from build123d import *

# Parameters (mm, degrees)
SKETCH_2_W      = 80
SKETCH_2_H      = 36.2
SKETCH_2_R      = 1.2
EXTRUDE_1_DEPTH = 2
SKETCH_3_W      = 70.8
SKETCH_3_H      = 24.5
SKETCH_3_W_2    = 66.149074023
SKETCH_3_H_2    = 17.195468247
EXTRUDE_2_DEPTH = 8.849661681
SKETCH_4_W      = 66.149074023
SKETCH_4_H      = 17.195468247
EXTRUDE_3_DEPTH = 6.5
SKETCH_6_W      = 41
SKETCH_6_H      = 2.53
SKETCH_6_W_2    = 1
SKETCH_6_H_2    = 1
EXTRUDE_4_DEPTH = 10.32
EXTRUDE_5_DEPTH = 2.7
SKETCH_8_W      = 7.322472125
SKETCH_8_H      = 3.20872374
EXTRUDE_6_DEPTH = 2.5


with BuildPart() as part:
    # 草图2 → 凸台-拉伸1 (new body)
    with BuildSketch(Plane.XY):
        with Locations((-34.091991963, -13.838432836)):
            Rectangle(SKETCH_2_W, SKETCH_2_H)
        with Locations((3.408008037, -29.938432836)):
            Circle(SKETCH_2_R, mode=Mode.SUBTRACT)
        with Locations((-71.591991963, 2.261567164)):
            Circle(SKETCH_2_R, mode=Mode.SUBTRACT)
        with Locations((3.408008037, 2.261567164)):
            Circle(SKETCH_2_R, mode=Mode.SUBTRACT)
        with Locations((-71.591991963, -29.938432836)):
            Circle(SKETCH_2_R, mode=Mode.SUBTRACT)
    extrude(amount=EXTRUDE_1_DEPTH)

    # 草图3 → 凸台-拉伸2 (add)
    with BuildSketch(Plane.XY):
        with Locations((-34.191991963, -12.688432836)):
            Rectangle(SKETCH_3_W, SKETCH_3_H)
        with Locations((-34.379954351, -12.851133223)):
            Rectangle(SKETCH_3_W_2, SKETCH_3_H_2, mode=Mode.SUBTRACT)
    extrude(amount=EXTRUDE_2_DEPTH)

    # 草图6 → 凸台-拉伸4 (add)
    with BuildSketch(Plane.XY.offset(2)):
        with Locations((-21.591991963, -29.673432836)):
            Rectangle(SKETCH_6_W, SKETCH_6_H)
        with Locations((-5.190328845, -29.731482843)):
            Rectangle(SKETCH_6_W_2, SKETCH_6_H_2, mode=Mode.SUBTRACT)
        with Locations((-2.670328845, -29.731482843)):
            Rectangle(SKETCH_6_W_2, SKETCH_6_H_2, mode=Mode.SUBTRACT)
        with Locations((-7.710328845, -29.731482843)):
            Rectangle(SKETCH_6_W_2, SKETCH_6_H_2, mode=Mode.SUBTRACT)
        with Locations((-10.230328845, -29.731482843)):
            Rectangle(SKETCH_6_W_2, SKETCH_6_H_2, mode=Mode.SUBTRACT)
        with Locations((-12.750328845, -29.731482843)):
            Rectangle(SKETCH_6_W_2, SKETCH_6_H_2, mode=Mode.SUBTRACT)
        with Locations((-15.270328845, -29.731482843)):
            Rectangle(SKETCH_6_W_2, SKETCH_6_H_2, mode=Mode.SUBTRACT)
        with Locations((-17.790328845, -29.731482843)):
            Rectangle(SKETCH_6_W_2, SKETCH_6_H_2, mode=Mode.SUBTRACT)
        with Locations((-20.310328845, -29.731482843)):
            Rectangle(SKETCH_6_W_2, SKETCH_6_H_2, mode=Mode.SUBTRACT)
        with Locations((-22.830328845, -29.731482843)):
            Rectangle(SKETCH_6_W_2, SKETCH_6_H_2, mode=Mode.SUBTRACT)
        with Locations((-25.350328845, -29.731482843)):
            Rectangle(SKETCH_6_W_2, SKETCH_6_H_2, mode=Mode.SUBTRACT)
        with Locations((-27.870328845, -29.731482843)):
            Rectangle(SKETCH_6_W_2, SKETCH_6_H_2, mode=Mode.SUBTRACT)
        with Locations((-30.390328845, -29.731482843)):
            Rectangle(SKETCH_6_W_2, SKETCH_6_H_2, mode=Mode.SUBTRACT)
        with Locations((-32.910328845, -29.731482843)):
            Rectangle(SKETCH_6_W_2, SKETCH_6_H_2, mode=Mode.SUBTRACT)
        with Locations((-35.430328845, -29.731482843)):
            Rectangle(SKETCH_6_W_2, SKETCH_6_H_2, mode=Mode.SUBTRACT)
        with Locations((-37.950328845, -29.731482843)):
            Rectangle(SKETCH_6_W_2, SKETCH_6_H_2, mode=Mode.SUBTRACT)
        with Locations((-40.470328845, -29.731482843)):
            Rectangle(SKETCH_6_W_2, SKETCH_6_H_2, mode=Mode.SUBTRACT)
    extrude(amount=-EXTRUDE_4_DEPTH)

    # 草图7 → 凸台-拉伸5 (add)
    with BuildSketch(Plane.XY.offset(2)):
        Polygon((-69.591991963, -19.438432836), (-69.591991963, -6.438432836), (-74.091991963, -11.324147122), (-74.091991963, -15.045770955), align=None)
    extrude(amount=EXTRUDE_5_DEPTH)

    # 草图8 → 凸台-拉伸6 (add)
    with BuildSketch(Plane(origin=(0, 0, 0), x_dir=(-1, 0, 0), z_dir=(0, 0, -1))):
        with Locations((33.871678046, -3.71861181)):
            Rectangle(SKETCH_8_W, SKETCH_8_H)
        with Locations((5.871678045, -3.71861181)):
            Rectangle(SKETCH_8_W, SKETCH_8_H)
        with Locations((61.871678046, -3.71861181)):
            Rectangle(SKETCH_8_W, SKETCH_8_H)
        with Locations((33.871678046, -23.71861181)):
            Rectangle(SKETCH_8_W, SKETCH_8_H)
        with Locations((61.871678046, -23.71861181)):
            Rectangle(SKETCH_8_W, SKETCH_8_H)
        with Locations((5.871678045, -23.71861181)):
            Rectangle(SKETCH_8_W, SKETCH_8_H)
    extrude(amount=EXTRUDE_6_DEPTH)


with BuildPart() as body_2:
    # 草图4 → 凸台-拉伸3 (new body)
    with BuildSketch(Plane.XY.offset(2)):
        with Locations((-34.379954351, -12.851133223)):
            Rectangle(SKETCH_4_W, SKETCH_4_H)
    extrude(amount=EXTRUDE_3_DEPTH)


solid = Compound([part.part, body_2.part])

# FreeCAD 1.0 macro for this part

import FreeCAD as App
import Part
import Sketcher
from FreeCAD import Vector

doc = App.newDocument("Part")
body = doc.addObject("PartDesign::Body", "Body")

# Sketch on XY plane
sketch1 = body.newObject("Sketcher::SketchObject", "Sketch")
sketch1.AttachmentSupport = (doc.getObject("XY_Plane"), [""])
sketch1.MapMode = "FlatFace"
sketch1.addGeometry([
    Part.LineSegment(Vector(-74.1, 4.3, 0), Vector(-74.1, -31.9, 0)),  # 0
    Part.LineSegment(Vector(-74.1, -31.9, 0), Vector(5.9, -31.9, 0)),  # 1
    Part.LineSegment(Vector(5.9, -31.9, 0), Vector(5.9, 4.3, 0)),  # 2
    Part.LineSegment(Vector(5.9, 4.3, 0), Vector(-74.1, 4.3, 0)),  # 3
    Part.Circle(Vector(-71.6, -29.9, 0), Vector(0, 0, 1), 1.2),  # 4
    Part.Circle(Vector(3.4, -29.9, 0), Vector(0, 0, 1), 1.2),  # 5
    Part.Circle(Vector(-71.6, 2.3, 0), Vector(0, 0, 1), 1.2),  # 6
    Part.Circle(Vector(3.4, 2.3, 0), Vector(0, 0, 1), 1.2),  # 7
], False)
sketch1.addConstraint([
    Sketcher.Constraint("Coincident", 0, 2, 1, 1),
    Sketcher.Constraint("Coincident", 1, 2, 2, 1),
    Sketcher.Constraint("Coincident", 2, 2, 3, 1),
    Sketcher.Constraint("Coincident", 3, 2, 0, 1),
    Sketcher.Constraint("Vertical", 0),
    Sketcher.Constraint("Horizontal", 1),
    Sketcher.Constraint("Vertical", 2),
    Sketcher.Constraint("Horizontal", 3),
    Sketcher.Constraint("Equal", 4, 5),
    Sketcher.Constraint("Equal", 5, 6),
    Sketcher.Constraint("Equal", 6, 7),
    Sketcher.Constraint("Horizontal", 4, 3, 5, 3),
    Sketcher.Constraint("Horizontal", 6, 3, 7, 3),
    Sketcher.Constraint("Vertical", 4, 3, 6, 3),
    Sketcher.Constraint("Vertical", 5, 3, 7, 3),
    Sketcher.Constraint("Diameter", 4, 2.4),
    Sketcher.Constraint("DistanceX", 1, 1, 1, 2, 80.0),
    Sketcher.Constraint("DistanceY", 0, 2, 0, 1, 36.2),
    Sketcher.Constraint("DistanceX", 4, 3, 5, 3, 75.0),
    Sketcher.Constraint("DistanceY", 0, 2, 4, 3, 2.0),
    Sketcher.Constraint("DistanceY", 7, 3, 2, 2, 2.0),
    Sketcher.Constraint("DistanceX", 0, 2, 4, 3, 2.5),
    Sketcher.Constraint("DistanceX", 4, 3, -1, 1, 71.591992),
    Sketcher.Constraint("DistanceY", 4, 3, -1, 1, 29.938433),
])
pad1 = body.newObject("PartDesign::Pad", "Pad")
pad1.Profile = sketch1
pad1.Length = 2

# Sketch on XY plane
sketch2 = body.newObject("Sketcher::SketchObject", "Sketch001")
sketch2.AttachmentSupport = (doc.getObject("XY_Plane"), [""])
sketch2.MapMode = "FlatFace"
sketch2.addGeometry([
    Part.LineSegment(Vector(-70, 0, 0), Vector(-70, -25, 0)),  # 0
    Part.LineSegment(Vector(-70, -25, 0), Vector(1, -25, 0)),  # 1
    Part.LineSegment(Vector(1, -25, 0), Vector(1, 0, 0)),  # 2
    Part.LineSegment(Vector(1, 0, 0), Vector(-70, 0, 0)),  # 3
    Part.LineSegment(Vector(-1, -21, 0), Vector(-67, -21, 0)),  # 4
    Part.LineSegment(Vector(-67, -21, 0), Vector(-67, -4, 0)),  # 5
    Part.LineSegment(Vector(-67, -4, 0), Vector(-1, -4, 0)),  # 6
    Part.LineSegment(Vector(-1, -4, 0), Vector(-1, -21, 0)),  # 7
], False)
sketch2.addConstraint([
    Sketcher.Constraint("Coincident", 0, 2, 1, 1),
    Sketcher.Constraint("Coincident", 1, 2, 2, 1),
    Sketcher.Constraint("Coincident", 2, 2, 3, 1),
    Sketcher.Constraint("Coincident", 3, 2, 0, 1),
    Sketcher.Constraint("Coincident", 4, 2, 5, 1),
    Sketcher.Constraint("Coincident", 5, 2, 6, 1),
    Sketcher.Constraint("Coincident", 6, 2, 7, 1),
    Sketcher.Constraint("Coincident", 7, 2, 4, 1),
    Sketcher.Constraint("Vertical", 0),
    Sketcher.Constraint("Horizontal", 1),
    Sketcher.Constraint("Vertical", 2),
    Sketcher.Constraint("Horizontal", 3),
    Sketcher.Constraint("Horizontal", 4),
    Sketcher.Constraint("Vertical", 5),
    Sketcher.Constraint("Horizontal", 6),
    Sketcher.Constraint("Vertical", 7),
    Sketcher.Constraint("DistanceX", 1, 1, 1, 2, 70.8),
    Sketcher.Constraint("DistanceY", 0, 2, 0, 1, 24.5),
    Sketcher.Constraint("DistanceY", 5, 1, 5, 2, 17.195468),
    Sketcher.Constraint("DistanceY", 5, 2, -1, 1, 4.253399),
    Sketcher.Constraint("DistanceX", 0, 2, 4, 2, 2.137501),
    Sketcher.Constraint("DistanceX", 4, 2, 4, 1, 66.149074),
    Sketcher.Constraint("DistanceX", 0, 2, -1, 1, 69.591992),
    Sketcher.Constraint("DistanceY", 0, 2, -1, 1, 24.938433),
])
pad2 = body.newObject("PartDesign::Pad", "Pad001")
pad2.Profile = sketch2
pad2.Length = 8.849662

# Sketch on XY plane
sketch3 = body.newObject("Sketcher::SketchObject", "Sketch002")
sketch3.AttachmentSupport = (doc.getObject("XY_Plane"), [""])
sketch3.MapMode = "FlatFace"
sketch3.AttachmentOffset = App.Placement(Vector(0, 0, 2), App.Rotation())
sketch3.addGeometry([
    Part.LineSegment(Vector(-42.1, -28.4, 0), Vector(-42.1, -30.9, 0)),  # 0
    Part.LineSegment(Vector(-42.1, -30.9, 0), Vector(-1.1, -30.9, 0)),  # 1
    Part.LineSegment(Vector(-1.1, -30.9, 0), Vector(-1.1, -28.4, 0)),  # 2
    Part.LineSegment(Vector(-1.1, -28.4, 0), Vector(-42.1, -28.4, 0)),  # 3
    Part.LineSegment(Vector(-40, -30.2, 0), Vector(-41, -30.2, 0)),  # 4
    Part.LineSegment(Vector(-41, -30.2, 0), Vector(-41, -29.2, 0)),  # 5
    Part.LineSegment(Vector(-41, -29.2, 0), Vector(-40, -29.2, 0)),  # 6
    Part.LineSegment(Vector(-40, -29.2, 0), Vector(-40, -30.2, 0)),  # 7
    Part.LineSegment(Vector(-37.5, -30.2, 0), Vector(-38.5, -30.2, 0)),  # 8
    Part.LineSegment(Vector(-38.5, -30.2, 0), Vector(-38.5, -29.2, 0)),  # 9
    Part.LineSegment(Vector(-38.5, -29.2, 0), Vector(-37.5, -29.2, 0)),  # 10
    Part.LineSegment(Vector(-37.5, -29.2, 0), Vector(-37.5, -30.2, 0)),  # 11
    Part.LineSegment(Vector(-34.9, -30.2, 0), Vector(-35.9, -30.2, 0)),  # 12
    Part.LineSegment(Vector(-35.9, -30.2, 0), Vector(-35.9, -29.2, 0)),  # 13
    Part.LineSegment(Vector(-35.9, -29.2, 0), Vector(-34.9, -29.2, 0)),  # 14
    Part.LineSegment(Vector(-34.9, -29.2, 0), Vector(-34.9, -30.2, 0)),  # 15
    Part.LineSegment(Vector(-32.4, -30.2, 0), Vector(-33.4, -30.2, 0)),  # 16
    Part.LineSegment(Vector(-33.4, -30.2, 0), Vector(-33.4, -29.2, 0)),  # 17
    Part.LineSegment(Vector(-33.4, -29.2, 0), Vector(-32.4, -29.2, 0)),  # 18
    Part.LineSegment(Vector(-32.4, -29.2, 0), Vector(-32.4, -30.2, 0)),  # 19
    Part.LineSegment(Vector(-29.9, -30.2, 0), Vector(-30.9, -30.2, 0)),  # 20
    Part.LineSegment(Vector(-30.9, -30.2, 0), Vector(-30.9, -29.2, 0)),  # 21
    Part.LineSegment(Vector(-30.9, -29.2, 0), Vector(-29.9, -29.2, 0)),  # 22
    Part.LineSegment(Vector(-29.9, -29.2, 0), Vector(-29.9, -30.2, 0)),  # 23
    Part.LineSegment(Vector(-27.4, -30.2, 0), Vector(-28.4, -30.2, 0)),  # 24
    Part.LineSegment(Vector(-28.4, -30.2, 0), Vector(-28.4, -29.2, 0)),  # 25
    Part.LineSegment(Vector(-28.4, -29.2, 0), Vector(-27.4, -29.2, 0)),  # 26
    Part.LineSegment(Vector(-27.4, -29.2, 0), Vector(-27.4, -30.2, 0)),  # 27
    Part.LineSegment(Vector(-24.9, -30.2, 0), Vector(-25.9, -30.2, 0)),  # 28
    Part.LineSegment(Vector(-25.9, -30.2, 0), Vector(-25.9, -29.2, 0)),  # 29
    Part.LineSegment(Vector(-25.9, -29.2, 0), Vector(-24.9, -29.2, 0)),  # 30
    Part.LineSegment(Vector(-24.9, -29.2, 0), Vector(-24.9, -30.2, 0)),  # 31
    Part.LineSegment(Vector(-22.3, -30.2, 0), Vector(-23.3, -30.2, 0)),  # 32
    Part.LineSegment(Vector(-23.3, -30.2, 0), Vector(-23.3, -29.2, 0)),  # 33
    Part.LineSegment(Vector(-23.3, -29.2, 0), Vector(-22.3, -29.2, 0)),  # 34
    Part.LineSegment(Vector(-22.3, -29.2, 0), Vector(-22.3, -30.2, 0)),  # 35
    Part.LineSegment(Vector(-19.8, -30.2, 0), Vector(-20.8, -30.2, 0)),  # 36
    Part.LineSegment(Vector(-20.8, -30.2, 0), Vector(-20.8, -29.2, 0)),  # 37
    Part.LineSegment(Vector(-20.8, -29.2, 0), Vector(-19.8, -29.2, 0)),  # 38
    Part.LineSegment(Vector(-19.8, -29.2, 0), Vector(-19.8, -30.2, 0)),  # 39
    Part.LineSegment(Vector(-17.3, -30.2, 0), Vector(-18.3, -30.2, 0)),  # 40
    Part.LineSegment(Vector(-18.3, -30.2, 0), Vector(-18.3, -29.2, 0)),  # 41
    Part.LineSegment(Vector(-18.3, -29.2, 0), Vector(-17.3, -29.2, 0)),  # 42
    Part.LineSegment(Vector(-17.3, -29.2, 0), Vector(-17.3, -30.2, 0)),  # 43
    Part.LineSegment(Vector(-14.8, -30.2, 0), Vector(-15.8, -30.2, 0)),  # 44
    Part.LineSegment(Vector(-15.8, -30.2, 0), Vector(-15.8, -29.2, 0)),  # 45
    Part.LineSegment(Vector(-15.8, -29.2, 0), Vector(-14.8, -29.2, 0)),  # 46
    Part.LineSegment(Vector(-14.8, -29.2, 0), Vector(-14.8, -30.2, 0)),  # 47
    Part.LineSegment(Vector(-12.3, -30.2, 0), Vector(-13.3, -30.2, 0)),  # 48
    Part.LineSegment(Vector(-13.3, -30.2, 0), Vector(-13.3, -29.2, 0)),  # 49
    Part.LineSegment(Vector(-13.3, -29.2, 0), Vector(-12.3, -29.2, 0)),  # 50
    Part.LineSegment(Vector(-12.3, -29.2, 0), Vector(-12.3, -30.2, 0)),  # 51
    Part.LineSegment(Vector(-9.7, -30.2, 0), Vector(-10.7, -30.2, 0)),  # 52
    Part.LineSegment(Vector(-10.7, -30.2, 0), Vector(-10.7, -29.2, 0)),  # 53
    Part.LineSegment(Vector(-10.7, -29.2, 0), Vector(-9.7, -29.2, 0)),  # 54
    Part.LineSegment(Vector(-9.7, -29.2, 0), Vector(-9.7, -30.2, 0)),  # 55
    Part.LineSegment(Vector(-7.2, -30.2, 0), Vector(-8.2, -30.2, 0)),  # 56
    Part.LineSegment(Vector(-8.2, -30.2, 0), Vector(-8.2, -29.2, 0)),  # 57
    Part.LineSegment(Vector(-8.2, -29.2, 0), Vector(-7.2, -29.2, 0)),  # 58
    Part.LineSegment(Vector(-7.2, -29.2, 0), Vector(-7.2, -30.2, 0)),  # 59
    Part.LineSegment(Vector(-4.7, -30.2, 0), Vector(-5.7, -30.2, 0)),  # 60
    Part.LineSegment(Vector(-5.7, -30.2, 0), Vector(-5.7, -29.2, 0)),  # 61
    Part.LineSegment(Vector(-5.7, -29.2, 0), Vector(-4.7, -29.2, 0)),  # 62
    Part.LineSegment(Vector(-4.7, -29.2, 0), Vector(-4.7, -30.2, 0)),  # 63
    Part.LineSegment(Vector(-2.2, -30.2, 0), Vector(-3.2, -30.2, 0)),  # 64
    Part.LineSegment(Vector(-3.2, -30.2, 0), Vector(-3.2, -29.2, 0)),  # 65
    Part.LineSegment(Vector(-3.2, -29.2, 0), Vector(-2.2, -29.2, 0)),  # 66
    Part.LineSegment(Vector(-2.2, -29.2, 0), Vector(-2.2, -30.2, 0)),  # 67
], False)
sketch3.addConstraint([
    Sketcher.Constraint("Coincident", 0, 2, 1, 1),
    Sketcher.Constraint("Coincident", 1, 2, 2, 1),
    Sketcher.Constraint("Coincident", 2, 2, 3, 1),
    Sketcher.Constraint("Coincident", 3, 2, 0, 1),
    Sketcher.Constraint("Coincident", 4, 2, 5, 1),
    Sketcher.Constraint("Coincident", 5, 2, 6, 1),
    Sketcher.Constraint("Coincident", 6, 2, 7, 1),
    Sketcher.Constraint("Coincident", 7, 2, 4, 1),
    Sketcher.Constraint("Coincident", 8, 2, 9, 1),
    Sketcher.Constraint("Coincident", 9, 2, 10, 1),
    Sketcher.Constraint("Coincident", 10, 2, 11, 1),
    Sketcher.Constraint("Coincident", 11, 2, 8, 1),
    Sketcher.Constraint("Coincident", 12, 2, 13, 1),
    Sketcher.Constraint("Coincident", 13, 2, 14, 1),
    Sketcher.Constraint("Coincident", 14, 2, 15, 1),
    Sketcher.Constraint("Coincident", 15, 2, 12, 1),
    Sketcher.Constraint("Coincident", 16, 2, 17, 1),
    Sketcher.Constraint("Coincident", 17, 2, 18, 1),
    Sketcher.Constraint("Coincident", 18, 2, 19, 1),
    Sketcher.Constraint("Coincident", 19, 2, 16, 1),
    Sketcher.Constraint("Coincident", 20, 2, 21, 1),
    Sketcher.Constraint("Coincident", 21, 2, 22, 1),
    Sketcher.Constraint("Coincident", 22, 2, 23, 1),
    Sketcher.Constraint("Coincident", 23, 2, 20, 1),
    Sketcher.Constraint("Coincident", 24, 2, 25, 1),
    Sketcher.Constraint("Coincident", 25, 2, 26, 1),
    Sketcher.Constraint("Coincident", 26, 2, 27, 1),
    Sketcher.Constraint("Coincident", 27, 2, 24, 1),
    Sketcher.Constraint("Coincident", 28, 2, 29, 1),
    Sketcher.Constraint("Coincident", 29, 2, 30, 1),
    Sketcher.Constraint("Coincident", 30, 2, 31, 1),
    Sketcher.Constraint("Coincident", 31, 2, 28, 1),
    Sketcher.Constraint("Coincident", 32, 2, 33, 1),
    Sketcher.Constraint("Coincident", 33, 2, 34, 1),
    Sketcher.Constraint("Coincident", 34, 2, 35, 1),
    Sketcher.Constraint("Coincident", 35, 2, 32, 1),
    Sketcher.Constraint("Coincident", 36, 2, 37, 1),
    Sketcher.Constraint("Coincident", 37, 2, 38, 1),
    Sketcher.Constraint("Coincident", 38, 2, 39, 1),
    Sketcher.Constraint("Coincident", 39, 2, 36, 1),
    Sketcher.Constraint("Coincident", 40, 2, 41, 1),
    Sketcher.Constraint("Coincident", 41, 2, 42, 1),
    Sketcher.Constraint("Coincident", 42, 2, 43, 1),
    Sketcher.Constraint("Coincident", 43, 2, 40, 1),
    Sketcher.Constraint("Coincident", 44, 2, 45, 1),
    Sketcher.Constraint("Coincident", 45, 2, 46, 1),
    Sketcher.Constraint("Coincident", 46, 2, 47, 1),
    Sketcher.Constraint("Coincident", 47, 2, 44, 1),
    Sketcher.Constraint("Coincident", 48, 2, 49, 1),
    Sketcher.Constraint("Coincident", 49, 2, 50, 1),
    Sketcher.Constraint("Coincident", 50, 2, 51, 1),
    Sketcher.Constraint("Coincident", 51, 2, 48, 1),
    Sketcher.Constraint("Coincident", 52, 2, 53, 1),
    Sketcher.Constraint("Coincident", 53, 2, 54, 1),
    Sketcher.Constraint("Coincident", 54, 2, 55, 1),
    Sketcher.Constraint("Coincident", 55, 2, 52, 1),
    Sketcher.Constraint("Coincident", 56, 2, 57, 1),
    Sketcher.Constraint("Coincident", 57, 2, 58, 1),
    Sketcher.Constraint("Coincident", 58, 2, 59, 1),
    Sketcher.Constraint("Coincident", 59, 2, 56, 1),
    Sketcher.Constraint("Coincident", 60, 2, 61, 1),
    Sketcher.Constraint("Coincident", 61, 2, 62, 1),
    Sketcher.Constraint("Coincident", 62, 2, 63, 1),
    Sketcher.Constraint("Coincident", 63, 2, 60, 1),
    Sketcher.Constraint("Coincident", 64, 2, 65, 1),
    Sketcher.Constraint("Coincident", 65, 2, 66, 1),
    Sketcher.Constraint("Coincident", 66, 2, 67, 1),
    Sketcher.Constraint("Coincident", 67, 2, 64, 1),
    Sketcher.Constraint("Vertical", 0),
    Sketcher.Constraint("Horizontal", 1),
    Sketcher.Constraint("Vertical", 2),
    Sketcher.Constraint("Horizontal", 3),
    Sketcher.Constraint("Horizontal", 4),
    Sketcher.Constraint("Vertical", 5),
    Sketcher.Constraint("Horizontal", 6),
    Sketcher.Constraint("Vertical", 7),
    Sketcher.Constraint("Horizontal", 8),
    Sketcher.Constraint("Vertical", 9),
    Sketcher.Constraint("Horizontal", 10),
    Sketcher.Constraint("Vertical", 11),
    Sketcher.Constraint("Horizontal", 12),
    Sketcher.Constraint("Vertical", 13),
    Sketcher.Constraint("Horizontal", 14),
    Sketcher.Constraint("Vertical", 15),
    Sketcher.Constraint("Horizontal", 16),
    Sketcher.Constraint("Vertical", 17),
    Sketcher.Constraint("Horizontal", 18),
    Sketcher.Constraint("Vertical", 19),
    Sketcher.Constraint("Horizontal", 20),
    Sketcher.Constraint("Vertical", 21),
    Sketcher.Constraint("Horizontal", 22),
    Sketcher.Constraint("Vertical", 23),
    Sketcher.Constraint("Horizontal", 24),
    Sketcher.Constraint("Vertical", 25),
    Sketcher.Constraint("Horizontal", 26),
    Sketcher.Constraint("Vertical", 27),
    Sketcher.Constraint("Horizontal", 28),
    Sketcher.Constraint("Vertical", 29),
    Sketcher.Constraint("Horizontal", 30),
    Sketcher.Constraint("Vertical", 31),
    Sketcher.Constraint("Horizontal", 32),
    Sketcher.Constraint("Vertical", 33),
    Sketcher.Constraint("Horizontal", 34),
    Sketcher.Constraint("Vertical", 35),
    Sketcher.Constraint("Horizontal", 36),
    Sketcher.Constraint("Vertical", 37),
    Sketcher.Constraint("Horizontal", 38),
    Sketcher.Constraint("Vertical", 39),
    Sketcher.Constraint("Horizontal", 40),
    Sketcher.Constraint("Vertical", 41),
    Sketcher.Constraint("Horizontal", 42),
    Sketcher.Constraint("Vertical", 43),
    Sketcher.Constraint("Horizontal", 44),
    Sketcher.Constraint("Vertical", 45),
    Sketcher.Constraint("Horizontal", 46),
    Sketcher.Constraint("Vertical", 47),
    Sketcher.Constraint("Horizontal", 48),
    Sketcher.Constraint("Vertical", 49),
    Sketcher.Constraint("Horizontal", 50),
    Sketcher.Constraint("Vertical", 51),
    Sketcher.Constraint("Horizontal", 52),
    Sketcher.Constraint("Vertical", 53),
    Sketcher.Constraint("Horizontal", 54),
    Sketcher.Constraint("Vertical", 55),
    Sketcher.Constraint("Horizontal", 56),
    Sketcher.Constraint("Vertical", 57),
    Sketcher.Constraint("Horizontal", 58),
    Sketcher.Constraint("Vertical", 59),
    Sketcher.Constraint("Horizontal", 60),
    Sketcher.Constraint("Vertical", 61),
    Sketcher.Constraint("Horizontal", 62),
    Sketcher.Constraint("Vertical", 63),
    Sketcher.Constraint("Horizontal", 64),
    Sketcher.Constraint("Vertical", 65),
    Sketcher.Constraint("Horizontal", 66),
    Sketcher.Constraint("Vertical", 67),
    Sketcher.Constraint("Horizontal", 7, 2, 8, 2),
    Sketcher.Constraint("Horizontal", 6, 2, 9, 2),
    Sketcher.Constraint("Horizontal", 11, 2, 12, 2),
    Sketcher.Constraint("Horizontal", 10, 2, 13, 2),
    Sketcher.Constraint("Horizontal", 15, 2, 16, 2),
    Sketcher.Constraint("Horizontal", 14, 2, 17, 2),
    Sketcher.Constraint("Horizontal", 19, 2, 20, 2),
    Sketcher.Constraint("Horizontal", 18, 2, 21, 2),
    Sketcher.Constraint("Horizontal", 23, 2, 24, 2),
    Sketcher.Constraint("Horizontal", 22, 2, 25, 2),
    Sketcher.Constraint("Horizontal", 27, 2, 28, 2),
    Sketcher.Constraint("Horizontal", 26, 2, 29, 2),
    Sketcher.Constraint("Horizontal", 31, 2, 32, 2),
    Sketcher.Constraint("Horizontal", 30, 2, 33, 2),
    Sketcher.Constraint("Horizontal", 35, 2, 36, 2),
    Sketcher.Constraint("Horizontal", 34, 2, 37, 2),
    Sketcher.Constraint("Horizontal", 39, 2, 40, 2),
    Sketcher.Constraint("Horizontal", 38, 2, 41, 2),
    Sketcher.Constraint("Horizontal", 43, 2, 44, 2),
    Sketcher.Constraint("Horizontal", 42, 2, 45, 2),
    Sketcher.Constraint("Horizontal", 47, 2, 48, 2),
    Sketcher.Constraint("Horizontal", 46, 2, 49, 2),
    Sketcher.Constraint("Horizontal", 51, 2, 52, 2),
    Sketcher.Constraint("Horizontal", 50, 2, 53, 2),
    Sketcher.Constraint("Horizontal", 55, 2, 56, 2),
    Sketcher.Constraint("Horizontal", 54, 2, 57, 2),
    Sketcher.Constraint("Horizontal", 59, 2, 60, 2),
    Sketcher.Constraint("Horizontal", 58, 2, 61, 2),
    Sketcher.Constraint("Horizontal", 63, 2, 64, 2),
    Sketcher.Constraint("Horizontal", 62, 2, 65, 2),
    Sketcher.Constraint("Equal", 6, 8),
    Sketcher.Constraint("Equal", 10, 12),
    Sketcher.Constraint("Equal", 14, 16),
    Sketcher.Constraint("Equal", 18, 20),
    Sketcher.Constraint("Equal", 22, 24),
    Sketcher.Constraint("Equal", 26, 28),
    Sketcher.Constraint("Equal", 30, 32),
    Sketcher.Constraint("Equal", 34, 36),
    Sketcher.Constraint("Equal", 38, 40),
    Sketcher.Constraint("Equal", 42, 44),
    Sketcher.Constraint("Equal", 46, 48),
    Sketcher.Constraint("Equal", 50, 52),
    Sketcher.Constraint("Equal", 54, 56),
    Sketcher.Constraint("Equal", 58, 60),
    Sketcher.Constraint("Equal", 62, 64),
    Sketcher.Constraint("Equal", 66, 5),
    Sketcher.Constraint("DistanceX", 1, 1, 1, 2, 41.0),
    Sketcher.Constraint("DistanceX", 4, 2, 4, 1, 1.0),
    Sketcher.Constraint("DistanceY", 0, 2, 0, 1, 2.53),
    Sketcher.Constraint("DistanceX", 0, 2, -1, 1, 42.091992),
    Sketcher.Constraint("DistanceX", 4, 2, -1, 1, 40.970329),
    Sketcher.Constraint("DistanceX", 8, 2, -1, 1, 38.450329),
    Sketcher.Constraint("DistanceX", 12, 2, -1, 1, 35.930329),
    Sketcher.Constraint("DistanceX", 16, 2, -1, 1, 33.410329),
    Sketcher.Constraint("DistanceX", 20, 2, -1, 1, 30.890329),
    Sketcher.Constraint("DistanceX", 24, 2, -1, 1, 28.370329),
    Sketcher.Constraint("DistanceX", 28, 2, -1, 1, 25.850329),
    Sketcher.Constraint("DistanceX", 32, 2, -1, 1, 23.330329),
    Sketcher.Constraint("DistanceX", 36, 2, -1, 1, 20.810329),
    Sketcher.Constraint("DistanceX", 40, 2, -1, 1, 18.290329),
    Sketcher.Constraint("DistanceX", 44, 2, -1, 1, 15.770329),
    Sketcher.Constraint("DistanceX", 48, 2, -1, 1, 13.250329),
    Sketcher.Constraint("DistanceX", 52, 2, -1, 1, 10.730329),
    Sketcher.Constraint("DistanceX", 56, 2, -1, 1, 8.210329),
    Sketcher.Constraint("DistanceX", 60, 2, -1, 1, 5.690329),
    Sketcher.Constraint("DistanceX", 64, 2, -1, 1, 3.170329),
    Sketcher.Constraint("DistanceY", 0, 2, -1, 1, 30.938433),
    Sketcher.Constraint("DistanceY", 4, 2, -1, 1, 30.231483),
])
pad3 = body.newObject("PartDesign::Pad", "Pad002")
pad3.Profile = sketch3
pad3.Length = 10.32
pad3.Reversed = True

# Sketch on XY plane
sketch4 = body.newObject("Sketcher::SketchObject", "Sketch003")
sketch4.AttachmentSupport = (doc.getObject("XY_Plane"), [""])
sketch4.MapMode = "FlatFace"
sketch4.AttachmentOffset = App.Placement(Vector(0, 0, 2), App.Rotation())
sketch4.addGeometry([
    Part.LineSegment(Vector(-69.6, -19.4, 0), Vector(-69.6, -6.4, 0)),
    Part.LineSegment(Vector(-69.6, -6.4, 0), Vector(-74.1, -11.3, 0)),
    Part.LineSegment(Vector(-74.1, -11.3, 0), Vector(-74.1, -15, 0)),
    Part.LineSegment(Vector(-74.1, -15, 0), Vector(-69.6, -19.4, 0)),
], False)
sketch4.addConstraint([
    Sketcher.Constraint("Coincident", 0, 2, 1, 1),
    Sketcher.Constraint("Coincident", 1, 2, 2, 1),
    Sketcher.Constraint("Coincident", 2, 2, 3, 1),
    Sketcher.Constraint("Coincident", 3, 2, 0, 1),
    Sketcher.Constraint("Vertical", 0),
    Sketcher.Constraint("Vertical", 2),
    Sketcher.Constraint("DistanceY", 0, 1, 0, 2, 13.0),
    Sketcher.Constraint("DistanceX", 1, 2, 0, 2, 4.5),
    Sketcher.Constraint("Distance", 3, 6.28852),
    Sketcher.Constraint("DistanceY", 2, 2, 2, 1, 3.721624),
    Sketcher.Constraint("DistanceX", 0, 2, -1, 1, 69.591992),
    Sketcher.Constraint("DistanceY", 2, 2, -1, 1, 15.045771),
])
pad4 = body.newObject("PartDesign::Pad", "Pad003")
pad4.Profile = sketch4
pad4.Length = 2.7

# Sketch on XY plane
sketch5 = body.newObject("Sketcher::SketchObject", "Sketch004")
sketch5.AttachmentSupport = (doc.getObject("XY_Plane"), [""])
sketch5.MapMode = "FlatFace"
sketch5.addGeometry([
    Part.LineSegment(Vector(-30.2, -2.1, 0), Vector(-30.2, -5.3, 0)),  # 0
    Part.LineSegment(Vector(-30.2, -5.3, 0), Vector(-37.5, -5.3, 0)),  # 1
    Part.LineSegment(Vector(-37.5, -5.3, 0), Vector(-37.5, -2.1, 0)),  # 2
    Part.LineSegment(Vector(-37.5, -2.1, 0), Vector(-30.2, -2.1, 0)),  # 3
    Part.LineSegment(Vector(-2.2, -2.1, 0), Vector(-2.2, -5.3, 0)),  # 4
    Part.LineSegment(Vector(-2.2, -5.3, 0), Vector(-9.5, -5.3, 0)),  # 5
    Part.LineSegment(Vector(-9.5, -5.3, 0), Vector(-9.5, -2.1, 0)),  # 6
    Part.LineSegment(Vector(-9.5, -2.1, 0), Vector(-2.2, -2.1, 0)),  # 7
    Part.LineSegment(Vector(-58.2, -2.1, 0), Vector(-58.2, -5.3, 0)),  # 8
    Part.LineSegment(Vector(-58.2, -5.3, 0), Vector(-65.5, -5.3, 0)),  # 9
    Part.LineSegment(Vector(-65.5, -5.3, 0), Vector(-65.5, -2.1, 0)),  # 10
    Part.LineSegment(Vector(-65.5, -2.1, 0), Vector(-58.2, -2.1, 0)),  # 11
    Part.LineSegment(Vector(-30.2, -22.1, 0), Vector(-30.2, -25.3, 0)),  # 12
    Part.LineSegment(Vector(-30.2, -25.3, 0), Vector(-37.5, -25.3, 0)),  # 13
    Part.LineSegment(Vector(-37.5, -25.3, 0), Vector(-37.5, -22.1, 0)),  # 14
    Part.LineSegment(Vector(-37.5, -22.1, 0), Vector(-30.2, -22.1, 0)),  # 15
    Part.LineSegment(Vector(-58.2, -22.1, 0), Vector(-58.2, -25.3, 0)),  # 16
    Part.LineSegment(Vector(-58.2, -25.3, 0), Vector(-65.5, -25.3, 0)),  # 17
    Part.LineSegment(Vector(-65.5, -25.3, 0), Vector(-65.5, -22.1, 0)),  # 18
    Part.LineSegment(Vector(-65.5, -22.1, 0), Vector(-58.2, -22.1, 0)),  # 19
    Part.LineSegment(Vector(-2.2, -22.1, 0), Vector(-2.2, -25.3, 0)),  # 20
    Part.LineSegment(Vector(-2.2, -25.3, 0), Vector(-9.5, -25.3, 0)),  # 21
    Part.LineSegment(Vector(-9.5, -25.3, 0), Vector(-9.5, -22.1, 0)),  # 22
    Part.LineSegment(Vector(-9.5, -22.1, 0), Vector(-2.2, -22.1, 0)),  # 23
], False)
sketch5.addConstraint([
    Sketcher.Constraint("Coincident", 0, 2, 1, 1),
    Sketcher.Constraint("Coincident", 1, 2, 2, 1),
    Sketcher.Constraint("Coincident", 2, 2, 3, 1),
    Sketcher.Constraint("Coincident", 3, 2, 0, 1),
    Sketcher.Constraint("Coincident", 4, 2, 5, 1),
    Sketcher.Constraint("Coincident", 5, 2, 6, 1),
    Sketcher.Constraint("Coincident", 6, 2, 7, 1),
    Sketcher.Constraint("Coincident", 7, 2, 4, 1),
    Sketcher.Constraint("Coincident", 8, 2, 9, 1),
    Sketcher.Constraint("Coincident", 9, 2, 10, 1),
    Sketcher.Constraint("Coincident", 10, 2, 11, 1),
    Sketcher.Constraint("Coincident", 11, 2, 8, 1),
    Sketcher.Constraint("Coincident", 12, 2, 13, 1),
    Sketcher.Constraint("Coincident", 13, 2, 14, 1),
    Sketcher.Constraint("Coincident", 14, 2, 15, 1),
    Sketcher.Constraint("Coincident", 15, 2, 12, 1),
    Sketcher.Constraint("Coincident", 16, 2, 17, 1),
    Sketcher.Constraint("Coincident", 17, 2, 18, 1),
    Sketcher.Constraint("Coincident", 18, 2, 19, 1),
    Sketcher.Constraint("Coincident", 19, 2, 16, 1),
    Sketcher.Constraint("Coincident", 20, 2, 21, 1),
    Sketcher.Constraint("Coincident", 21, 2, 22, 1),
    Sketcher.Constraint("Coincident", 22, 2, 23, 1),
    Sketcher.Constraint("Coincident", 23, 2, 20, 1),
    Sketcher.Constraint("Vertical", 0),
    Sketcher.Constraint("Horizontal", 1),
    Sketcher.Constraint("Vertical", 2),
    Sketcher.Constraint("Horizontal", 3),
    Sketcher.Constraint("Vertical", 4),
    Sketcher.Constraint("Horizontal", 5),
    Sketcher.Constraint("Vertical", 6),
    Sketcher.Constraint("Horizontal", 7),
    Sketcher.Constraint("Vertical", 8),
    Sketcher.Constraint("Horizontal", 9),
    Sketcher.Constraint("Vertical", 10),
    Sketcher.Constraint("Horizontal", 11),
    Sketcher.Constraint("Vertical", 12),
    Sketcher.Constraint("Horizontal", 13),
    Sketcher.Constraint("Vertical", 14),
    Sketcher.Constraint("Horizontal", 15),
    Sketcher.Constraint("Vertical", 16),
    Sketcher.Constraint("Horizontal", 17),
    Sketcher.Constraint("Vertical", 18),
    Sketcher.Constraint("Horizontal", 19),
    Sketcher.Constraint("Vertical", 20),
    Sketcher.Constraint("Horizontal", 21),
    Sketcher.Constraint("Vertical", 22),
    Sketcher.Constraint("Horizontal", 23),
    Sketcher.Constraint("Horizontal", 1, 2, 4, 2),
    Sketcher.Constraint("Horizontal", 3, 2, 6, 2),
    Sketcher.Constraint("Horizontal", 5, 2, 8, 2),
    Sketcher.Constraint("Horizontal", 7, 2, 10, 2),
    Sketcher.Constraint("Horizontal", 13, 2, 16, 2),
    Sketcher.Constraint("Horizontal", 15, 2, 18, 2),
    Sketcher.Constraint("Horizontal", 17, 2, 20, 2),
    Sketcher.Constraint("Horizontal", 19, 2, 22, 2),
    Sketcher.Constraint("Vertical", 3, 2, 12, 2),
    Sketcher.Constraint("Vertical", 2, 2, 13, 2),
    Sketcher.Constraint("Vertical", 11, 2, 16, 2),
    Sketcher.Constraint("Vertical", 10, 2, 17, 2),
    Sketcher.Constraint("Vertical", 7, 2, 20, 2),
    Sketcher.Constraint("Vertical", 6, 2, 21, 2),
    Sketcher.Constraint("Equal", 3, 5),
    Sketcher.Constraint("Equal", 7, 9),
    Sketcher.Constraint("Equal", 10, 12),
    Sketcher.Constraint("DistanceX", 0, 2, 4, 2, 28.0),
    Sketcher.Constraint("DistanceX", 8, 2, 0, 2, 28.0),
    Sketcher.Constraint("DistanceY", 12, 2, 0, 2, 20.0),
    Sketcher.Constraint("DistanceX", 1, 2, 1, 1, 7.322472),
    Sketcher.Constraint("DistanceY", 0, 2, 0, 1, 3.208724),
    Sketcher.Constraint("DistanceX", 0, 2, -1, 1, 30.210442),
    Sketcher.Constraint("DistanceY", 2, 2, -1, 1, 2.11425),
])
pad5 = body.newObject("PartDesign::Pad", "Pad004")
pad5.Profile = sketch5
pad5.Length = 2.5
pad5.Reversed = True
body2 = doc.addObject("PartDesign::Body", "Body001")

# Sketch on XY plane
sketch6 = body2.newObject("Sketcher::SketchObject", "Sketch005")
sketch6.AttachmentSupport = (doc.getObject("XY_Plane001"), [""])
sketch6.MapMode = "FlatFace"
sketch6.AttachmentOffset = App.Placement(Vector(0, 0, 2), App.Rotation())
sketch6.addGeometry([
    Part.LineSegment(Vector(-67, -4, 0), Vector(-67, -21, 0)),
    Part.LineSegment(Vector(-67, -21, 0), Vector(-1, -21, 0)),
    Part.LineSegment(Vector(-1, -21, 0), Vector(-1, -4, 0)),
    Part.LineSegment(Vector(-1, -4, 0), Vector(-67, -4, 0)),
], False)
sketch6.addConstraint([
    Sketcher.Constraint("Coincident", 0, 2, 1, 1),
    Sketcher.Constraint("Coincident", 1, 2, 2, 1),
    Sketcher.Constraint("Coincident", 2, 2, 3, 1),
    Sketcher.Constraint("Coincident", 3, 2, 0, 1),
    Sketcher.Constraint("Vertical", 0),
    Sketcher.Constraint("Horizontal", 1),
    Sketcher.Constraint("Vertical", 2),
    Sketcher.Constraint("Horizontal", 3),
    Sketcher.Constraint("DistanceY", 0, 2, 0, 1, 17.195468),
    Sketcher.Constraint("DistanceY", 2, 2, -1, 1, 4.253399),
    Sketcher.Constraint("DistanceX", 1, 1, 1, 2, 66.149074),
    Sketcher.Constraint("DistanceX", 0, 2, -1, 1, 67.454491),
])
pad6 = body2.newObject("PartDesign::Pad", "Pad005")
pad6.Profile = sketch6
pad6.Length = 6.5

doc.recompute()
